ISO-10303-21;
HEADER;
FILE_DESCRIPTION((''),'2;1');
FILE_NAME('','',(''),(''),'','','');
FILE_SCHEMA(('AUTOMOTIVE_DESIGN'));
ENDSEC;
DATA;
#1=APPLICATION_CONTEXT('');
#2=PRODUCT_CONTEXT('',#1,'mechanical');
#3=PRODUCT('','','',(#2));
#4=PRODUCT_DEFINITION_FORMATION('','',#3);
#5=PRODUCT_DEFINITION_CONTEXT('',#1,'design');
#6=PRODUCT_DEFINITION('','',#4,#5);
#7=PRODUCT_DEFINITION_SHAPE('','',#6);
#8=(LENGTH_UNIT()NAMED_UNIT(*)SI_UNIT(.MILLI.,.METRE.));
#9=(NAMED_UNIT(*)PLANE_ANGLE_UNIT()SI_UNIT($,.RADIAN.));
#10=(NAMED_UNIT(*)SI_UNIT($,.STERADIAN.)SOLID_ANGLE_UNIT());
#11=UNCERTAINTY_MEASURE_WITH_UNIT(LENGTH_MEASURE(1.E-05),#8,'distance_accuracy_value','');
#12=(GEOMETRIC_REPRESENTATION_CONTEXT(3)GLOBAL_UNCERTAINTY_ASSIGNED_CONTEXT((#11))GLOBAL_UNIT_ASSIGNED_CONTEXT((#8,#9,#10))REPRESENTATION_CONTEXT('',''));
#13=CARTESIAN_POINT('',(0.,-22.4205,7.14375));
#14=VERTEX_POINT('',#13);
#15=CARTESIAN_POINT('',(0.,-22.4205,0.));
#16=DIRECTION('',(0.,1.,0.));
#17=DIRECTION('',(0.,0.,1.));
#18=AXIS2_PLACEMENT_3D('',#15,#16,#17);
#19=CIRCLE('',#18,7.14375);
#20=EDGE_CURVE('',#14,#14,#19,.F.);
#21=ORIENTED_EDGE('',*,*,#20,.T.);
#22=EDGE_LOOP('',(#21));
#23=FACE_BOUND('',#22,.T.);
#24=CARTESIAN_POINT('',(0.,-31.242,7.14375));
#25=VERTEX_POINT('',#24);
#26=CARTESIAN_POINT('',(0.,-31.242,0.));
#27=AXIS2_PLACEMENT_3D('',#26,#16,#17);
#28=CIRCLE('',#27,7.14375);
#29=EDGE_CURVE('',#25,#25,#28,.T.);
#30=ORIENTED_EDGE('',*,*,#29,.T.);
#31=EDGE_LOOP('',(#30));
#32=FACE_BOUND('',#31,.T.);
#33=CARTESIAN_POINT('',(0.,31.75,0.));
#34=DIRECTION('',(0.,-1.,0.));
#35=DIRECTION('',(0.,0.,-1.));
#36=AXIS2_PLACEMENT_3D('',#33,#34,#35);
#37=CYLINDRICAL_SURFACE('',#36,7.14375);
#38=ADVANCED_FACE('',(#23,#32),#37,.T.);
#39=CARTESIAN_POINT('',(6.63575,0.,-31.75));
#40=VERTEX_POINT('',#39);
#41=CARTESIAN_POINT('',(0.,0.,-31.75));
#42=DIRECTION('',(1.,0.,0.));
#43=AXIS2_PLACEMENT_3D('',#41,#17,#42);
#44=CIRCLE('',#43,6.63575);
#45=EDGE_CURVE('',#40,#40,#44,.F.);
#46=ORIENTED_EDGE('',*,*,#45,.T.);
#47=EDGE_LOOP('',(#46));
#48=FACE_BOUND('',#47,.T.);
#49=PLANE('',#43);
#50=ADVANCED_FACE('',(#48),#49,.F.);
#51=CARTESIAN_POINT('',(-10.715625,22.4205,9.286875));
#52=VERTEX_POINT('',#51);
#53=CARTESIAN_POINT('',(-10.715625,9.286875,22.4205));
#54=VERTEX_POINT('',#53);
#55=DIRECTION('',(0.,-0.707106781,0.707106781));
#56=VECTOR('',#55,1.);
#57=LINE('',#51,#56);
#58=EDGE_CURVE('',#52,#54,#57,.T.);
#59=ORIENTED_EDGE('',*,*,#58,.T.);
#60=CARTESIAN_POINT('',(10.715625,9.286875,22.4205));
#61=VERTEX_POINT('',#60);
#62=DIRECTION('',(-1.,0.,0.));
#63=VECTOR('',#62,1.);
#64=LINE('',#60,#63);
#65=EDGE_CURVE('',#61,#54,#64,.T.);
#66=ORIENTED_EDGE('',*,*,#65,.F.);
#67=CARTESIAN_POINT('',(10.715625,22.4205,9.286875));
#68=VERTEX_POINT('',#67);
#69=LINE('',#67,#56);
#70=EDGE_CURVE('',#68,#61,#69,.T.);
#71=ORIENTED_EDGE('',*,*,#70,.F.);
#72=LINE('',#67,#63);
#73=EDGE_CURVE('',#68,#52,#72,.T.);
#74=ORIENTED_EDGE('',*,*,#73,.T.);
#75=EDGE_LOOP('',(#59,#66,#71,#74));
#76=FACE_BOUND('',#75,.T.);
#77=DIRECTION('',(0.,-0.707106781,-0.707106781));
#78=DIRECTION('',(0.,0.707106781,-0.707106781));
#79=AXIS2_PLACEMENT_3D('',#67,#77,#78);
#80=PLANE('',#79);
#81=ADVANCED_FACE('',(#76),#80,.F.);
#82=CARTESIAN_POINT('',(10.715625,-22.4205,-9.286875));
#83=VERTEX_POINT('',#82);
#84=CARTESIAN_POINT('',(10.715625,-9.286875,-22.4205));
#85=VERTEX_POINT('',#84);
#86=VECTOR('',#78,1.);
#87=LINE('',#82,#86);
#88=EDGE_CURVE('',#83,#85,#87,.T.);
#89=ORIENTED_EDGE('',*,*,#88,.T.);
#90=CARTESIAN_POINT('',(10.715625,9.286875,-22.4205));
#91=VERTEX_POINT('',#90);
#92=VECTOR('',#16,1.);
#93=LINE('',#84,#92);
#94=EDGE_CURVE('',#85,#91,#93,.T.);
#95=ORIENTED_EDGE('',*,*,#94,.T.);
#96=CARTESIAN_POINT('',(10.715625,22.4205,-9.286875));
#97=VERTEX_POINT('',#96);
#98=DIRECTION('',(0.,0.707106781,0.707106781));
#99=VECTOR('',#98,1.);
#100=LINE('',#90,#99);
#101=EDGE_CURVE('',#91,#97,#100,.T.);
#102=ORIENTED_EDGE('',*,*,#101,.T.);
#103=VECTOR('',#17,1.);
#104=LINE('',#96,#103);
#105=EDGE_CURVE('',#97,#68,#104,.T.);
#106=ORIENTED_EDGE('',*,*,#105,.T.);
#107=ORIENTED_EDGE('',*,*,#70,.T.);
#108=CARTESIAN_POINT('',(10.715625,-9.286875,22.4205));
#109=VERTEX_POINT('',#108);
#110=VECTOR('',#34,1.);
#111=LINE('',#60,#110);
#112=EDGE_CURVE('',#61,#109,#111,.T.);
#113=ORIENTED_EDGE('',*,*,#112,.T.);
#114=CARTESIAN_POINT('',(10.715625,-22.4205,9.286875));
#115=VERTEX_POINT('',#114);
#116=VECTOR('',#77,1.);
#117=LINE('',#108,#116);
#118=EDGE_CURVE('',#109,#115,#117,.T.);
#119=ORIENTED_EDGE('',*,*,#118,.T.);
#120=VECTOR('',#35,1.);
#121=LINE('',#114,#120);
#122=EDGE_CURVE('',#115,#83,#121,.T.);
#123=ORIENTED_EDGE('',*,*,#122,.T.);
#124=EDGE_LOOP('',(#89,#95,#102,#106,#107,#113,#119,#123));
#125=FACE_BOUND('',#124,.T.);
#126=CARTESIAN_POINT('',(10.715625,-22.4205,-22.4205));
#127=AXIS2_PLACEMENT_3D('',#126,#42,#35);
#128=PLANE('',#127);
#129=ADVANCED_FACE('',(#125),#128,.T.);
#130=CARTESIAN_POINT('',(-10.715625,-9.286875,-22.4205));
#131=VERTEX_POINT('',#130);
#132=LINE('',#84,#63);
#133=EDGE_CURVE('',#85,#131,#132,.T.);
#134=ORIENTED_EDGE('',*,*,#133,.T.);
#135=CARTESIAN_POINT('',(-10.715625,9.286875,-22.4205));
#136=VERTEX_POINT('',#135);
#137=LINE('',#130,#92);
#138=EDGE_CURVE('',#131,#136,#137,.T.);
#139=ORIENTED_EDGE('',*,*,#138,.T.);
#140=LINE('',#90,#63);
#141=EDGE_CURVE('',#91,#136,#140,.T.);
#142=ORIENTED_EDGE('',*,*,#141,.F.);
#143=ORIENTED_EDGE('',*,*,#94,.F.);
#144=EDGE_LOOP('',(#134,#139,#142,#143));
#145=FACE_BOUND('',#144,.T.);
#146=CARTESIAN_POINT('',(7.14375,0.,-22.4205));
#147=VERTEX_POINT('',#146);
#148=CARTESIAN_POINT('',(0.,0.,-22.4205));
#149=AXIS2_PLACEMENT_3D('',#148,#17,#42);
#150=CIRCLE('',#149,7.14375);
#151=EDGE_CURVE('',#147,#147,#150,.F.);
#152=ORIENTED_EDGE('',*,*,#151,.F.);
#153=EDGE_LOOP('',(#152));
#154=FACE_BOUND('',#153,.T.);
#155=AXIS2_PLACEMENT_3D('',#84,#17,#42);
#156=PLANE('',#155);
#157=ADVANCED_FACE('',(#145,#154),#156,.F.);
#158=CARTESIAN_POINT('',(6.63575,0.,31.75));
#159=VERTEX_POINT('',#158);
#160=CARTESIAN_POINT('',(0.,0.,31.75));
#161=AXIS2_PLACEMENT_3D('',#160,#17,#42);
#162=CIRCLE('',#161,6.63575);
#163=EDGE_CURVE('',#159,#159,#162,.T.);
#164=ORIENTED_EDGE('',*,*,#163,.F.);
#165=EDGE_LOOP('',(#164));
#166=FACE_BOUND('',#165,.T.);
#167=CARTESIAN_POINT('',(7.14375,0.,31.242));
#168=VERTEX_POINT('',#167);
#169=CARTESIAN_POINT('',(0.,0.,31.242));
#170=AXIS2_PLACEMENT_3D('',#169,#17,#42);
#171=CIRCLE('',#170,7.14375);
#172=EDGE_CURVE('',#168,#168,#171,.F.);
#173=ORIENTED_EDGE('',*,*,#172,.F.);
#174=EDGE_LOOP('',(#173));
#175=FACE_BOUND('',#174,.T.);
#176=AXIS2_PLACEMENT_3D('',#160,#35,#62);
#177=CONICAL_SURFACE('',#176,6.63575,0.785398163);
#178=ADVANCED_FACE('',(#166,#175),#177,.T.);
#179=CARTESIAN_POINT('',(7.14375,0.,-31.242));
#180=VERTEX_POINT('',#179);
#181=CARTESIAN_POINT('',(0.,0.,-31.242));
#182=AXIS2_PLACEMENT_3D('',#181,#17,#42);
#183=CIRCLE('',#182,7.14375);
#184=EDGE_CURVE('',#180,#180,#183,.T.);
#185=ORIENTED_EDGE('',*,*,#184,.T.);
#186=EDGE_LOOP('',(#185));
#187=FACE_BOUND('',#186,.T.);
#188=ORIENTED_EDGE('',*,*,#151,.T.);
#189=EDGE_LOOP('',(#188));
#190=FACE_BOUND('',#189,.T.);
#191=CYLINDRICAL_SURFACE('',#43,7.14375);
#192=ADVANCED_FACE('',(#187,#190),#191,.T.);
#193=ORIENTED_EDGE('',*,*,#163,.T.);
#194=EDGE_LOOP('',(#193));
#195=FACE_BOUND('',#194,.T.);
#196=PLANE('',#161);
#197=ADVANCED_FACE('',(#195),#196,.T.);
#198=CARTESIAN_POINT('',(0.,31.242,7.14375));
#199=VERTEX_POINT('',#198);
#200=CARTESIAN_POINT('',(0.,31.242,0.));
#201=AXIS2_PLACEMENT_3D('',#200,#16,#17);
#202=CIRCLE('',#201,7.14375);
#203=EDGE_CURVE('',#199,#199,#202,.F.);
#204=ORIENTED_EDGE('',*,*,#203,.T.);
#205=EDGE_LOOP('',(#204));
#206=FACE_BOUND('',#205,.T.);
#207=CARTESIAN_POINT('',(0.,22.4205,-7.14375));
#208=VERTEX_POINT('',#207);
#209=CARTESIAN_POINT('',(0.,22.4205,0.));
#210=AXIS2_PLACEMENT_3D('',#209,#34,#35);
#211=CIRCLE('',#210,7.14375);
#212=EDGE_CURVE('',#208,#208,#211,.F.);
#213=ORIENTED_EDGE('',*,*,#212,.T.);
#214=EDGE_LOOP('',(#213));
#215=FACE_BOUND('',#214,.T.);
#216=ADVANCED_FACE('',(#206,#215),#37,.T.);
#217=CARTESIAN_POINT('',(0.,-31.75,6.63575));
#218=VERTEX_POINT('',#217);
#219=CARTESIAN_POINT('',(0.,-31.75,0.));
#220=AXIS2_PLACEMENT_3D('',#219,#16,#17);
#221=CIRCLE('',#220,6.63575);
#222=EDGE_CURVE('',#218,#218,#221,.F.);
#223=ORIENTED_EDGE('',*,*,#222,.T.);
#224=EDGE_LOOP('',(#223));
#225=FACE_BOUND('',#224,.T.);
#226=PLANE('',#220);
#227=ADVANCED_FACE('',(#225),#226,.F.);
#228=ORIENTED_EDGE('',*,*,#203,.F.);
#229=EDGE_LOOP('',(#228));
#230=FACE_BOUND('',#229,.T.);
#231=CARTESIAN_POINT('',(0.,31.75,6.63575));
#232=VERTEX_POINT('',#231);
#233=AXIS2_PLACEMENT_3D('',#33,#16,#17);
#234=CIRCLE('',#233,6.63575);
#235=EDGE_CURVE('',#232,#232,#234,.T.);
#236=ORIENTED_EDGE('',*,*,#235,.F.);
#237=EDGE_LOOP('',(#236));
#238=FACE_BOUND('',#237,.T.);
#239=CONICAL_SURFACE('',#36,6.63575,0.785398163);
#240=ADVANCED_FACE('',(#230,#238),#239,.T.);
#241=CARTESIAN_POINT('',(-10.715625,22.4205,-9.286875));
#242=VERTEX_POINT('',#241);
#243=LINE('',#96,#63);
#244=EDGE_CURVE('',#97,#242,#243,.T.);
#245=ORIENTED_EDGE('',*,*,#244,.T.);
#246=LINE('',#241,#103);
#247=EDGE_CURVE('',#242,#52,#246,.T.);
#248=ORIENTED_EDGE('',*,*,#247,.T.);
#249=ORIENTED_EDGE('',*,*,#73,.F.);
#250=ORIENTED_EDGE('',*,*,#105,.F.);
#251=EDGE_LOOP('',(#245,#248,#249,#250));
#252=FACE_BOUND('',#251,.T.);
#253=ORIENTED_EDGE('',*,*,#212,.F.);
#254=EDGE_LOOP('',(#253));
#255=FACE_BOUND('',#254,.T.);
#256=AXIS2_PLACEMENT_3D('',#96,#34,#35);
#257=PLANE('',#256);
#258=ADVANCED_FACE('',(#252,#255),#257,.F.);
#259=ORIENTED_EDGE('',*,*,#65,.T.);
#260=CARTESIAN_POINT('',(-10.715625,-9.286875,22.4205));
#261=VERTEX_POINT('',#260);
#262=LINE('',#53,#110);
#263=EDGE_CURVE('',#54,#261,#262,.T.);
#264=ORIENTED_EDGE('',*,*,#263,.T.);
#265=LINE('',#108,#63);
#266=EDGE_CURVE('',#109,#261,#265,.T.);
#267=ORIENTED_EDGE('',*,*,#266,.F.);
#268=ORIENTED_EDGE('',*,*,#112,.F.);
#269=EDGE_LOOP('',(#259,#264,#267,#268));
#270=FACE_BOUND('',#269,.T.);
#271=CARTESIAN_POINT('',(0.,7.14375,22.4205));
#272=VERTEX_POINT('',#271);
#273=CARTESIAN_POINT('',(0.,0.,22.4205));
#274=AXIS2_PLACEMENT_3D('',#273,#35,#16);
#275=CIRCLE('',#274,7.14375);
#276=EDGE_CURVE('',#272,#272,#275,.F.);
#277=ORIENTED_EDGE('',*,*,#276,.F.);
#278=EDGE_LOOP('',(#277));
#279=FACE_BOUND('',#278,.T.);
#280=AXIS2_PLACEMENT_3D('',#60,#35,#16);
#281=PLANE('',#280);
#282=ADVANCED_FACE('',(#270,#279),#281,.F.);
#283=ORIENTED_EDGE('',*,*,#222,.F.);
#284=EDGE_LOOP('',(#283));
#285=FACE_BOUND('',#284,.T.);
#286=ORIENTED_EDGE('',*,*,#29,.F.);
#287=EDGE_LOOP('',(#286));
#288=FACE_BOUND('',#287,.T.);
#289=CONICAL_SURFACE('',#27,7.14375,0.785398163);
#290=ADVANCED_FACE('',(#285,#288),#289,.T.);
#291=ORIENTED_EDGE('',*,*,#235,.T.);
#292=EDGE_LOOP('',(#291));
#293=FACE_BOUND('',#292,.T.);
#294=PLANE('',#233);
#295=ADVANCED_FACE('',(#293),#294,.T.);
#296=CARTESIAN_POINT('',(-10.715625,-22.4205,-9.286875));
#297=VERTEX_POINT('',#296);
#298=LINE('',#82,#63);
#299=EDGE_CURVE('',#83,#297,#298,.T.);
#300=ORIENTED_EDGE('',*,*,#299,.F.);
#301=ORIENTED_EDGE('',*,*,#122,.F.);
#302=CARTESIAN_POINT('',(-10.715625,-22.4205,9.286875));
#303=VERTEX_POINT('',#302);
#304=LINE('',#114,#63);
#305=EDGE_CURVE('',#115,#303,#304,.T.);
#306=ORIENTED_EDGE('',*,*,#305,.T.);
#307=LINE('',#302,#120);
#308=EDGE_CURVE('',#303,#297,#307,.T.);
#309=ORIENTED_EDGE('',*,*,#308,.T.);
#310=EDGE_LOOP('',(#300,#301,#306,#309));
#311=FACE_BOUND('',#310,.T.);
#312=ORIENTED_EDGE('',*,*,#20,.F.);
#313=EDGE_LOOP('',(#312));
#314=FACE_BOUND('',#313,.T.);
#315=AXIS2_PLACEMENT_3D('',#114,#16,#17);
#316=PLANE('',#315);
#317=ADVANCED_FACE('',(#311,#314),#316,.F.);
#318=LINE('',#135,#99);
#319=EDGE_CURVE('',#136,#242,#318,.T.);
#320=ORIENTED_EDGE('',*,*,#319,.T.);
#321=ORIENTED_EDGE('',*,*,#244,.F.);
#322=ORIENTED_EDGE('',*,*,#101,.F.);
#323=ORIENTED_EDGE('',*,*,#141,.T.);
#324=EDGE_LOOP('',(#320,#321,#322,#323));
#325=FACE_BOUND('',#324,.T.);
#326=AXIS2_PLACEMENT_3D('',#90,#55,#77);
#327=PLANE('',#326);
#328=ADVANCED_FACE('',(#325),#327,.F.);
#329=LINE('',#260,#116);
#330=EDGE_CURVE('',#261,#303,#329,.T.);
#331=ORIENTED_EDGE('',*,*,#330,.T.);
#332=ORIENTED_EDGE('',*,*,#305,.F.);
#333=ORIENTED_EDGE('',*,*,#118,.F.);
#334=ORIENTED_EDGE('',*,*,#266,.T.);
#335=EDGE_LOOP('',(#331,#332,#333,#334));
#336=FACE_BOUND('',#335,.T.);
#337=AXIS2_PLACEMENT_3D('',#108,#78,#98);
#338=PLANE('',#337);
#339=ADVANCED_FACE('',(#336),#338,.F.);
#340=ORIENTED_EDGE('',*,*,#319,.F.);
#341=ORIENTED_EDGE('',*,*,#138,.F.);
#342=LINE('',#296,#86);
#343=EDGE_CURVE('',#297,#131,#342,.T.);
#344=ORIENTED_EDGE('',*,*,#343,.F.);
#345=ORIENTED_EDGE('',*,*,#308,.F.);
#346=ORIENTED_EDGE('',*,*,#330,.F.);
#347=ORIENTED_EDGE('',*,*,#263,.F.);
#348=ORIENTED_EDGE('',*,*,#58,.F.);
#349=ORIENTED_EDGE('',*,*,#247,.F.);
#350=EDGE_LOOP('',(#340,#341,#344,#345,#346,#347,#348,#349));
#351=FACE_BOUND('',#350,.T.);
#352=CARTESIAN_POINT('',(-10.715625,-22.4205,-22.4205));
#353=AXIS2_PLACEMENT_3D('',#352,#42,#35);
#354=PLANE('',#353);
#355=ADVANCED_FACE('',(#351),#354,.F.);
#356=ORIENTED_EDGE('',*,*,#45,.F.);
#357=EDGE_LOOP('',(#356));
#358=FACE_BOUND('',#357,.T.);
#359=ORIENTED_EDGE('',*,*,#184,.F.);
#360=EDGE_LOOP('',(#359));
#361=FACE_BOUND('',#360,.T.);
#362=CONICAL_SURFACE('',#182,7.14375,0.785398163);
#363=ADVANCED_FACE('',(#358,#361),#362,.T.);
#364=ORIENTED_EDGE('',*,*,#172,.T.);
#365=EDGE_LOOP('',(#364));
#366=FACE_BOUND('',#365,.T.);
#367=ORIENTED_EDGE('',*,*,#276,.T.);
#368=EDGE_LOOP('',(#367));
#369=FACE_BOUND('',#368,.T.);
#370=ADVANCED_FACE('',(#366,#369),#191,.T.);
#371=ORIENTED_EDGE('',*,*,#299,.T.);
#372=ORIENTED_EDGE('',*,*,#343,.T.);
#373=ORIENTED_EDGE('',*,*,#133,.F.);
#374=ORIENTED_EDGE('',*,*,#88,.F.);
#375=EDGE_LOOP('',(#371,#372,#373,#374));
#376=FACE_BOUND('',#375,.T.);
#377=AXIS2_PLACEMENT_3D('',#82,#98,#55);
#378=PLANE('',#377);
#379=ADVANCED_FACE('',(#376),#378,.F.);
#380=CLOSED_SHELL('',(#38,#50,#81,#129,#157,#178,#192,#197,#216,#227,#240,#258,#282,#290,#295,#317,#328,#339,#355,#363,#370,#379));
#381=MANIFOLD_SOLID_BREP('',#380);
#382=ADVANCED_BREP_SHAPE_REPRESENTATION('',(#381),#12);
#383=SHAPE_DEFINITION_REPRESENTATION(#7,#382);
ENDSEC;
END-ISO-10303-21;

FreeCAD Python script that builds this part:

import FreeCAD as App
import Part
import Sketcher
from FreeCAD import Vector
Q = App.Units.Quantity


def edges_at(feature, points):
    """Names of the edges that pass closest to the given points."""
    edges = feature.Shape.Edges
    near = lambda p: min(range(len(edges)), key=lambda i: edges[i].distToShape(Part.Vertex(*p))[0])
    return sorted({f"Edge{near(p) + 1}" for p in points})


def add_polygon(sketch, points):
    """Adds a closed chain of lines whose ends are joined by coincident constraints."""
    first, n = sketch.GeometryCount, len(points)
    for a, b in zip(points, points[1:] + points[:1]):
        sketch.addGeometry(Part.LineSegment(App.Vector(*a, 0), App.Vector(*b, 0)), False)
    for i in range(n):
        sketch.addConstraint(Sketcher.Constraint("Coincident", first + i, 2, first + (i + 1) % n, 1))

doc = App.newDocument("Part")
body = doc.addObject("PartDesign::Body", "Body")

# Sketch on XY plane
sketch1 = body.newObject("Sketcher::SketchObject", "Sketch")
sketch1.AttachmentSupport = (doc.getObject("XY_Plane"), [""])
sketch1.MapMode = "FlatFace"
sketch1.addGeometry(Part.Circle(Vector(0, 0, 0), Vector(0, 0, 1), 7), False)
sketch1.addConstraint([
    Sketcher.Constraint("Coincident", 0, 3, -1, 1),
    Sketcher.Constraint("Diameter", 0, Q("0.5625 in")),
])
pad1 = body.newObject("PartDesign::Pad", "Pad")
pad1.Profile = sketch1
pad1.Type = "TwoLengths"
pad1.Length = Q("1.25 in")
pad1.Length2 = Q("1.25 in")
body2 = doc.addObject("PartDesign::Body", "Body001")

# Sketch on XZ plane
sketch2 = body2.newObject("Sketcher::SketchObject", "Sketch001")
sketch2.AttachmentSupport = (doc.getObject("XZ_Plane001"), [""])
sketch2.MapMode = "FlatFace"
sketch2.addGeometry(Part.Circle(Vector(0, 0, 0), Vector(0, 0, 1), 7), False)
sketch2.addConstraint([
    Sketcher.Constraint("Coincident", 0, 3, -1, 1),
    Sketcher.Constraint("Diameter", 0, Q("0.5625 in")),
])
pad2 = body2.newObject("PartDesign::Pad", "Pad001")
pad2.Profile = sketch2
pad2.Type = "TwoLengths"
pad2.Length = Q("1.25 in")
pad2.Length2 = Q("1.25 in")
pad2.Reversed = True
doc.recompute()

boolean = body.newObject("PartDesign::Boolean", "Boolean")
boolean.Type = "Fuse"
boolean.addObjects([body2])

# Sketch on YZ plane
sketch3 = body.newObject("Sketcher::SketchObject", "Sketch002")
sketch3.AttachmentSupport = (doc.getObject("YZ_Plane"), [""])
sketch3.MapMode = "FlatFace"
add_polygon(sketch3, [(-22, -9), (-9, -22), (9, -22), (22, -9), (22, 9), (9, 22), (-9, 22), (-22, 9)])  # lines 0-7
sketch3.addConstraint([
    Sketcher.Constraint("Horizontal", 1),
    Sketcher.Constraint("Vertical", 3),
    Sketcher.Constraint("Horizontal", 5),
    Sketcher.Constraint("Vertical", 7),
    Sketcher.Constraint("Symmetric", 0, 2, 4, 2, -1, 1),
    Sketcher.Constraint("Symmetric", 2, 2, 6, 2, -1, 1),
    Sketcher.Constraint("Perpendicular", 0, 2),
    Sketcher.Constraint("Perpendicular", 2, 4),
    Sketcher.Constraint("Perpendicular", 4, 6),
    Sketcher.Constraint("Horizontal", 3, 2, 6, 2),
    Sketcher.Constraint("Vertical", 1, 2, 4, 2),
    Sketcher.Constraint("Equal", 5, 3),
    Sketcher.Constraint("DistanceX", 1, 1, 1, 2, 18.57375),
    Sketcher.Constraint("DistanceY", 0, 2, -1, 1, 22.4205),
])
pad3 = body.newObject("PartDesign::Pad", "Pad002")
pad3.Profile = sketch3
pad3.Length = Q("0.84375 in")
pad3.Midplane = True
doc.recompute()

chamfer = body.newObject("PartDesign::Chamfer", "Chamfer")
chamfer.Base = (pad3, edges_at(pad3, [
    (0, -31.75, -7.144),
    (0, 31.75, -7.144),
    (-7.144, 0, -31.75),
    (-7.144, 0, 31.75),
]))
chamfer.Size = Q("0.02 in")

doc.recompute()
